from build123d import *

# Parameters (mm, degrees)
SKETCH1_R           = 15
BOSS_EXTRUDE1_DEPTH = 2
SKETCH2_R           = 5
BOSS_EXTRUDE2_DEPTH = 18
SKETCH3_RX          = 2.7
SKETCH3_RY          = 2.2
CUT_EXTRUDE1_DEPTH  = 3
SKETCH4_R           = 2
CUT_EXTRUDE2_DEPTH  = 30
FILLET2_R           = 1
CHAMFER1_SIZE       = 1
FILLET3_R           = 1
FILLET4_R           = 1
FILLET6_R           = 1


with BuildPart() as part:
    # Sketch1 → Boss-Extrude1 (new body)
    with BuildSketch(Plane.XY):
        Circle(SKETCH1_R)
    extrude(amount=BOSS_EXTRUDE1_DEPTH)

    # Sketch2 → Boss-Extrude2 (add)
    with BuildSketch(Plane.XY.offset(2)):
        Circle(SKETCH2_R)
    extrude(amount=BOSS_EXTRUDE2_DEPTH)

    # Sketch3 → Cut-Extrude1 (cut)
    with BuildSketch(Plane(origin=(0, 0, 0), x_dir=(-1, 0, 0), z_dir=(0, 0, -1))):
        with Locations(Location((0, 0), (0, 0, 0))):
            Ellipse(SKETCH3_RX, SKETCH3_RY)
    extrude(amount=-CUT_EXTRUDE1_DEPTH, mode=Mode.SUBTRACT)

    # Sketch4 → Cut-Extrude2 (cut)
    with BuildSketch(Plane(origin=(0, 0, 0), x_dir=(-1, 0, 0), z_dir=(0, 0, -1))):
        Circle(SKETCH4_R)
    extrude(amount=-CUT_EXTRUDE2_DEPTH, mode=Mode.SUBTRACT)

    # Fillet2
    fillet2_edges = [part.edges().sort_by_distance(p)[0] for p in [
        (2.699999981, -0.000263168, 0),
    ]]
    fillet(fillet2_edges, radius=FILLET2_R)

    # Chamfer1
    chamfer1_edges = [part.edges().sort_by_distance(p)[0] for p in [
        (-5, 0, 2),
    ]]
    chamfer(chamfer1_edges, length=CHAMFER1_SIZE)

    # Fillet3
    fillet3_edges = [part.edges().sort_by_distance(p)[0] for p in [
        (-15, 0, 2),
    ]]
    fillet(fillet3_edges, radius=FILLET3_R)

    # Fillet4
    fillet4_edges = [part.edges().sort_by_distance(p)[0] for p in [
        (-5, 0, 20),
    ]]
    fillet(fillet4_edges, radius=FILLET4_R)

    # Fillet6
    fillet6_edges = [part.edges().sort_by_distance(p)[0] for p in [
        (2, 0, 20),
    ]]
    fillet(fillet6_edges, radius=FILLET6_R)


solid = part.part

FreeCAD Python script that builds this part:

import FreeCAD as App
import Part
import Sketcher

V = App.Vector
Q = App.Units.Quantity


def edges_at(feature, points):
    """Names of the edges that pass closest to the given points."""
    edges = feature.Shape.Edges
    near = lambda p: min(range(len(edges)), key=lambda i: edges[i].distToShape(Part.Vertex(*p))[0])
    return sorted({f"Edge{near(p) + 1}" for p in points})

doc = App.newDocument("Part")
body = doc.addObject("PartDesign::Body", "Body")

# Sketch on XY plane
sketch1 = body.newObject("Sketcher::SketchObject", "Sketch")
sketch1.AttachmentSupport = (doc.getObject("XY_Plane"), [""])
sketch1.MapMode = "FlatFace"
sketch1.addGeometry(Part.Circle(V(0, 0, 0), V(0, 0, 1), 15), False)
sketch1.addConstraint([
    Sketcher.Constraint("Coincident", 0, 3, -1, 1),
    Sketcher.Constraint("Diameter", 0, Q("30 mm")),
])
pad1 = body.newObject("PartDesign::Pad", "Pad")
pad1.Profile = sketch1
pad1.Length = 2

# Sketch on XY plane
sketch2 = body.newObject("Sketcher::SketchObject", "Sketch001")
sketch2.AttachmentSupport = (doc.getObject("XY_Plane"), [""])
sketch2.MapMode = "FlatFace"
sketch2.AttachmentOffset = App.Placement(V(0, 0, 2), App.Rotation())
sketch2.addGeometry(Part.Circle(V(0, 0, 0), V(0, 0, 1), 5), False)
sketch2.addConstraint([
    Sketcher.Constraint("Coincident", 0, 3, -1, 1),
    Sketcher.Constraint("Diameter", 0, Q("10 mm")),
])
pad2 = body.newObject("PartDesign::Pad", "Pad001")
pad2.Profile = sketch2
pad2.Length = 18

# Sketch on XY plane
sketch3 = body.newObject("Sketcher::SketchObject", "Sketch002")
sketch3.AttachmentSupport = (doc.getObject("XY_Plane"), [""])
sketch3.MapMode = "FlatFace"
sketch3.addGeometry(Part.Ellipse(V(-2.7, 0, 0), V(0, -2.2, 0), V(0, 0, 0)), False)
sketch3.addConstraint(Sketcher.Constraint("Block", 0))
pocket1 = body.newObject("PartDesign::Pocket", "Pocket")
pocket1.Profile = sketch3
pocket1.Length = 3
pocket1.Reversed = True

# Sketch on XY plane
sketch4 = body.newObject("Sketcher::SketchObject", "Sketch003")
sketch4.AttachmentSupport = (doc.getObject("XY_Plane"), [""])
sketch4.MapMode = "FlatFace"
sketch4.addGeometry(Part.Circle(V(0, 0, 0), V(0, 0, 1), 2), False)
sketch4.addConstraint([
    Sketcher.Constraint("Coincident", 0, 3, -1, 1),
    Sketcher.Constraint("Diameter", 0, Q("4 mm")),
])
pocket2 = body.newObject("PartDesign::Pocket", "Pocket001")
pocket2.Profile = sketch4
pocket2.Length = 30
pocket2.Reversed = True
doc.recompute()

fillet = body.newObject("PartDesign::Fillet", "Fillet")
fillet.Base = (pocket2, edges_at(pocket2, [(2.7, 0, 0)]))
fillet.Radius = 1
doc.recompute()

chamfer = body.newObject("PartDesign::Chamfer", "Chamfer")
chamfer.Base = (fillet, edges_at(fillet, [(-5, 0, 2)]))
chamfer.Size = 1
doc.recompute()

fillet2 = body.newObject("PartDesign::Fillet", "Fillet001")
fillet2.Base = (chamfer, edges_at(chamfer, [(-15, 0, 2)]))
fillet2.Radius = 1
doc.recompute()

fillet3 = body.newObject("PartDesign::Fillet", "Fillet002")
fillet3.Base = (fillet2, edges_at(fillet2, [(-5, 0, 20)]))
fillet3.Radius = 1
doc.recompute()

fillet4 = body.newObject("PartDesign::Fillet", "Fillet003")
fillet4.Base = (fillet3, edges_at(fillet3, [(2, 0, 20)]))
fillet4.Radius = 1

doc.recompute()
